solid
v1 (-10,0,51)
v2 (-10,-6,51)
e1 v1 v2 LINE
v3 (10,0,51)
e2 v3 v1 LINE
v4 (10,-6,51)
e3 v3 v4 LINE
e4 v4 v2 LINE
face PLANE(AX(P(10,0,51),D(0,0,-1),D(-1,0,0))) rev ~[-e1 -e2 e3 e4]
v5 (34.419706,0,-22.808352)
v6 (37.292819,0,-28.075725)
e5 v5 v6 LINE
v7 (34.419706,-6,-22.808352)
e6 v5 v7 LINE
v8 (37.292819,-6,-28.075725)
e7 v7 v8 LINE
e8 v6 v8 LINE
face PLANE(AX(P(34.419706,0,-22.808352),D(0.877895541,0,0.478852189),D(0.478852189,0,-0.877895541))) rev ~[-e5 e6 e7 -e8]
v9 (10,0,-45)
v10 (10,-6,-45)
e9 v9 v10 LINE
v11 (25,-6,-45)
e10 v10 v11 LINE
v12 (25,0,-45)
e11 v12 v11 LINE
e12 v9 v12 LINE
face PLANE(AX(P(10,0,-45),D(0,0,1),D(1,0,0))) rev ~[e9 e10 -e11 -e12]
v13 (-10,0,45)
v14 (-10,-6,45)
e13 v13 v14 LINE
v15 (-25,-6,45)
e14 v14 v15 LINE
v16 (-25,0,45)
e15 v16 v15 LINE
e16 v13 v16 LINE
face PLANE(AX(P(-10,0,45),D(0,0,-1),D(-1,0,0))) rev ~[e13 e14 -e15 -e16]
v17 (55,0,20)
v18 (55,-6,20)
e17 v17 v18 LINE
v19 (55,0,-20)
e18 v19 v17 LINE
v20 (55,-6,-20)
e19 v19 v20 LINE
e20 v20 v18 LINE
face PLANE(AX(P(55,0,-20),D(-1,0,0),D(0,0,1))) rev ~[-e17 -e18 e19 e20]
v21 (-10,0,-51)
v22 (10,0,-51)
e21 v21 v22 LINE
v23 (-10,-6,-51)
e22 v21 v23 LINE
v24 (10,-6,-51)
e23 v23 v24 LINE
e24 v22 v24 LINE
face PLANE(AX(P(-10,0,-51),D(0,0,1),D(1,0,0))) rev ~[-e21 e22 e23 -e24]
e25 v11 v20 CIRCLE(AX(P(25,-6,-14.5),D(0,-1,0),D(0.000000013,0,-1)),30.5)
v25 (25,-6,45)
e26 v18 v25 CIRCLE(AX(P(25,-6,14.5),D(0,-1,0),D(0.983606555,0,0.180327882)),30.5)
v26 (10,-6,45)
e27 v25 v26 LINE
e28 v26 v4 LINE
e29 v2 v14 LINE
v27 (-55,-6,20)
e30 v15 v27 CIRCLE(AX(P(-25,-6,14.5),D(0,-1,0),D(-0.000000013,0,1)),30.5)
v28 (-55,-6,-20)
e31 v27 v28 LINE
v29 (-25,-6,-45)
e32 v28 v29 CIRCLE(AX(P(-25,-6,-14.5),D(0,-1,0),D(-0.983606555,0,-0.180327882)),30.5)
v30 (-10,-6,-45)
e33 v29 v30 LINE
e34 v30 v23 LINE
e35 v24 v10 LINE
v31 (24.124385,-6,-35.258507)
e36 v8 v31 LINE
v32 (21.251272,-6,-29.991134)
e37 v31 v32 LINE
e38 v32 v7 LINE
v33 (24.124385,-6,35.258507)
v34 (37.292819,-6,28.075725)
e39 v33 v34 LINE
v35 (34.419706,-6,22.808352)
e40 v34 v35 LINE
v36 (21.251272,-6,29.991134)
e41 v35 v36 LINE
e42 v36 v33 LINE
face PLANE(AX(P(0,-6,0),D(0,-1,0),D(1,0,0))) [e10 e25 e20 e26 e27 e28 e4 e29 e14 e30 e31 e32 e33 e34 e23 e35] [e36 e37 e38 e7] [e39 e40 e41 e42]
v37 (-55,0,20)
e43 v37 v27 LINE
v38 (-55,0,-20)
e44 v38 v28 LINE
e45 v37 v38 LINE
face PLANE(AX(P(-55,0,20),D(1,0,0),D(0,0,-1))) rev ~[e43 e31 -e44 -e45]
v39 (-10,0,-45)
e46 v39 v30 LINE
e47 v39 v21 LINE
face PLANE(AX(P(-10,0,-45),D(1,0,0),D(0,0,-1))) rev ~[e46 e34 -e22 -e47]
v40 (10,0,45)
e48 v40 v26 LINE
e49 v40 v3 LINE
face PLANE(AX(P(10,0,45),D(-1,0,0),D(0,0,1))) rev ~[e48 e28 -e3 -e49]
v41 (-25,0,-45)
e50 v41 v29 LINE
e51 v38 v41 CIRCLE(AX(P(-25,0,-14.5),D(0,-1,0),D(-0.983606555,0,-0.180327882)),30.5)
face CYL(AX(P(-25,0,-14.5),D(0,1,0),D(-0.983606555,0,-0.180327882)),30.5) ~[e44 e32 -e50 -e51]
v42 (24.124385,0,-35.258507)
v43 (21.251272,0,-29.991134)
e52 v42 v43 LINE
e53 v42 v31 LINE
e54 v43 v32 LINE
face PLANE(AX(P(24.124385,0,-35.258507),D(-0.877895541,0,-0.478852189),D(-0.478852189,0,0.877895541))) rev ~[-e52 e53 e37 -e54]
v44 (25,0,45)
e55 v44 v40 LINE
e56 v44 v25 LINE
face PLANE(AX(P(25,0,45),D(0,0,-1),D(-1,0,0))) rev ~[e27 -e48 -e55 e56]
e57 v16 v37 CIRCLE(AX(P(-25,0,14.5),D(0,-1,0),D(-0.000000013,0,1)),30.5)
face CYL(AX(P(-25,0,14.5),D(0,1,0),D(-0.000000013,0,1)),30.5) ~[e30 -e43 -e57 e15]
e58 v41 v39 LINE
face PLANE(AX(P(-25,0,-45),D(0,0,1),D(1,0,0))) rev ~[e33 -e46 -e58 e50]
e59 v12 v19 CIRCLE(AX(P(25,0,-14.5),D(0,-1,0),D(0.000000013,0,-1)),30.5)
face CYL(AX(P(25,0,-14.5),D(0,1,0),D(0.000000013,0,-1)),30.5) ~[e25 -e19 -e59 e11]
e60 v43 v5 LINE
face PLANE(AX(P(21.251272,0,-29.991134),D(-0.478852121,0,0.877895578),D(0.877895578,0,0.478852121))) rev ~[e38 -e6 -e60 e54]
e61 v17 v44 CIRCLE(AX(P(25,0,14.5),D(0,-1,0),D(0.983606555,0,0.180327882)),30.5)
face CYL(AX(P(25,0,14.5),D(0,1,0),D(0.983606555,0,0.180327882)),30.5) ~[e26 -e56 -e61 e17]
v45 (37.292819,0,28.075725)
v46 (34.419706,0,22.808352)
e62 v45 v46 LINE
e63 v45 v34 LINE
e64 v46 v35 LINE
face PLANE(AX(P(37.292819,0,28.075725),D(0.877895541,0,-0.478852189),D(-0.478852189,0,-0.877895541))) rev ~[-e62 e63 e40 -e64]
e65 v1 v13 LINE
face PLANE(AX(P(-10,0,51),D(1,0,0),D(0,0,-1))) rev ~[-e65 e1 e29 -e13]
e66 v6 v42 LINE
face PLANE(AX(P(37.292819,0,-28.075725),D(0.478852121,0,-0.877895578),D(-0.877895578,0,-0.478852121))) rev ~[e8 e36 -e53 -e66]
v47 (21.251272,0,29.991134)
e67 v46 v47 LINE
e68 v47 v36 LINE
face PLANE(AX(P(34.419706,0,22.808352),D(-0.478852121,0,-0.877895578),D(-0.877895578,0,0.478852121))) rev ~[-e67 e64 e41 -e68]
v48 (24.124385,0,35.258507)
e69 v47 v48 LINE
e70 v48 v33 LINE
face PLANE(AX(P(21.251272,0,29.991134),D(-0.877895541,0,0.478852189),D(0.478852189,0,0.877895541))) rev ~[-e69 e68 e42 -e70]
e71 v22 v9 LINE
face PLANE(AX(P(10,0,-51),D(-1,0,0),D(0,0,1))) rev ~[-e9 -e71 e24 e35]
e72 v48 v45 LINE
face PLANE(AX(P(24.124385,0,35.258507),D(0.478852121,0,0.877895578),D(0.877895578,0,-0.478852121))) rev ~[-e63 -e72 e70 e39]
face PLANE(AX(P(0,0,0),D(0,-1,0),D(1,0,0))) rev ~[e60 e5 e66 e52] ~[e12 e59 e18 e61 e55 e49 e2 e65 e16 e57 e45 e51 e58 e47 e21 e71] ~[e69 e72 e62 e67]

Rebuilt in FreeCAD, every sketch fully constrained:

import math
import FreeCAD as App
import Part
import Sketcher
from FreeCAD import Vector
Q = App.Units.Quantity

doc = App.newDocument("Part")
body = doc.addObject("PartDesign::Body", "Body")

sketch1 = body.newObject("Sketcher::SketchObject", "Sketch")
sketch1.AttachmentSupport = (doc.getObject("XZ_Plane"), [""])
sketch1.MapMode = "FlatFace"
sketch1.addGeometry(Part.LineSegment(Vector(-10, -51, 0), Vector(10, -51, 0)), False)
sketch1.addGeometry(Part.LineSegment(Vector(10, -51, 0), Vector(10, -45, 0)), False)
sketch1.addGeometry(Part.LineSegment(Vector(10, -45, 0), Vector(25, -45, 0)), False)
sketch1.addGeometry(Part.ArcOfCircle(Part.Circle(Vector(25, -14.5, 0), Vector(0, 0, 1), 30.5), math.radians(-89.999999), math.radians(-10.388859)), False)
sketch1.addGeometry(Part.LineSegment(Vector(55, -20, 0), Vector(55, 20, 0)), False)
sketch1.addGeometry(Part.ArcOfCircle(Part.Circle(Vector(25, 14.5, 0), Vector(0, 0, 1), 30.5), math.radians(10.388859), math.radians(89.999999)), False)
sketch1.addGeometry(Part.LineSegment(Vector(25, 45, 0), Vector(10, 45, 0)), False)
sketch1.addGeometry(Part.LineSegment(Vector(10, 45, 0), Vector(10, 51, 0)), False)
sketch1.addGeometry(Part.LineSegment(Vector(10, 51, 0), Vector(-10, 51, 0)), False)
sketch1.addGeometry(Part.LineSegment(Vector(-10, 51, 0), Vector(-10, 45, 0)), False)
sketch1.addGeometry(Part.LineSegment(Vector(-10, 45, 0), Vector(-25, 45, 0)), False)
sketch1.addGeometry(Part.ArcOfCircle(Part.Circle(Vector(-25, 14.5, 0), Vector(0, 0, 1), 30.5), math.radians(90.000001), math.radians(169.611141)), False)
sketch1.addGeometry(Part.LineSegment(Vector(-55, 20, 0), Vector(-55, -20, 0)), False)
sketch1.addGeometry(Part.ArcOfCircle(Part.Circle(Vector(-25, -14.5, 0), Vector(0, 0, 1), 30.5), math.radians(-169.611141), math.radians(-90.000001)), False)
sketch1.addGeometry(Part.LineSegment(Vector(-25, -45, 0), Vector(-10, -45, 0)), False)
sketch1.addGeometry(Part.LineSegment(Vector(-10, -45, 0), Vector(-10, -51, 0)), False)
sketch1.addGeometry(Part.LineSegment(Vector(37.292819, -28.075725, 0), Vector(24.124385, -35.258507, 0)), False)
sketch1.addGeometry(Part.LineSegment(Vector(24.124385, -35.258507, 0), Vector(21.251272, -29.991134, 0)), False)
sketch1.addGeometry(Part.LineSegment(Vector(21.251272, -29.991134, 0), Vector(34.419706, -22.808352, 0)), False)
sketch1.addGeometry(Part.LineSegment(Vector(34.419706, -22.808352, 0), Vector(37.292819, -28.075725, 0)), False)
sketch1.addGeometry(Part.LineSegment(Vector(37.292819, 28.075725, 0), Vector(34.419706, 22.808352, 0)), False)
sketch1.addGeometry(Part.LineSegment(Vector(34.419706, 22.808352, 0), Vector(21.251272, 29.991134, 0)), False)
sketch1.addGeometry(Part.LineSegment(Vector(21.251272, 29.991134, 0), Vector(24.124385, 35.258507, 0)), False)
sketch1.addGeometry(Part.LineSegment(Vector(24.124385, 35.258507, 0), Vector(37.292819, 28.075725, 0)), False)
sketch1.addConstraint(Sketcher.Constraint("Coincident", 0, 2, 1, 1))
sketch1.addConstraint(Sketcher.Constraint("Coincident", 1, 2, 2, 1))
sketch1.addConstraint(Sketcher.Constraint("Tangent", 2, 2, 3, 1))
sketch1.addConstraint(Sketcher.Constraint("Coincident", 3, 2, 4, 1))
sketch1.addConstraint(Sketcher.Constraint("Coincident", 4, 2, 5, 1))
sketch1.addConstraint(Sketcher.Constraint("Tangent", 5, 2, 6, 1))
sketch1.addConstraint(Sketcher.Constraint("Coincident", 6, 2, 7, 1))
sketch1.addConstraint(Sketcher.Constraint("Coincident", 7, 2, 8, 1))
sketch1.addConstraint(Sketcher.Constraint("Coincident", 8, 2, 9, 1))
sketch1.addConstraint(Sketcher.Constraint("Coincident", 9, 2, 10, 1))
sketch1.addConstraint(Sketcher.Constraint("Tangent", 10, 2, 11, 1))
sketch1.addConstraint(Sketcher.Constraint("Coincident", 11, 2, 12, 1))
sketch1.addConstraint(Sketcher.Constraint("Coincident", 12, 2, 13, 1))
sketch1.addConstraint(Sketcher.Constraint("Tangent", 13, 2, 14, 1))
sketch1.addConstraint(Sketcher.Constraint("Coincident", 14, 2, 15, 1))
sketch1.addConstraint(Sketcher.Constraint("Coincident", 15, 2, 0, 1))
sketch1.addConstraint(Sketcher.Constraint("Coincident", 16, 2, 17, 1))
sketch1.addConstraint(Sketcher.Constraint("Coincident", 17, 2, 18, 1))
sketch1.addConstraint(Sketcher.Constraint("Coincident", 18, 2, 19, 1))
sketch1.addConstraint(Sketcher.Constraint("Coincident", 19, 2, 16, 1))
sketch1.addConstraint(Sketcher.Constraint("Coincident", 20, 2, 21, 1))
sketch1.addConstraint(Sketcher.Constraint("Coincident", 21, 2, 22, 1))
sketch1.addConstraint(Sketcher.Constraint("Coincident", 22, 2, 23, 1))
sketch1.addConstraint(Sketcher.Constraint("Coincident", 23, 2, 20, 1))
sketch1.addConstraint(Sketcher.Constraint("Horizontal", 0))
sketch1.addConstraint(Sketcher.Constraint("Vertical", 1))
sketch1.addConstraint(Sketcher.Constraint("Horizontal", 2))
sketch1.addConstraint(Sketcher.Constraint("Vertical", 4))
sketch1.addConstraint(Sketcher.Constraint("Horizontal", 6))
sketch1.addConstraint(Sketcher.Constraint("Vertical", 7))
sketch1.addConstraint(Sketcher.Constraint("Horizontal", 8))
sketch1.addConstraint(Sketcher.Constraint("Vertical", 9))
sketch1.addConstraint(Sketcher.Constraint("Horizontal", 10))
sketch1.addConstraint(Sketcher.Constraint("Vertical", 12))
sketch1.addConstraint(Sketcher.Constraint("Horizontal", 14))
sketch1.addConstraint(Sketcher.Constraint("Vertical", 15))
sketch1.addConstraint(Sketcher.Constraint("Equal", 3, 5))
sketch1.addConstraint(Sketcher.Constraint("Equal", 5, 11))
sketch1.addConstraint(Sketcher.Constraint("Equal", 11, 13))
sketch1.addConstraint(Sketcher.Constraint("Symmetric", 3, 3, 11, 3, -1, 1))
sketch1.addConstraint(Sketcher.Constraint("Symmetric", 5, 3, 13, 3, -1, 1))
sketch1.addConstraint(Sketcher.Constraint("Symmetric", 0, 2, 8, 2, -1, 1))
sketch1.addConstraint(Sketcher.Constraint("Symmetric", 5, 3, 11, 3, -2))
sketch1.addConstraint(Sketcher.Constraint("Symmetric", 18, 2, 20, 2, -1))
sketch1.addConstraint(Sketcher.Constraint("Symmetric", 17, 2, 21, 2, -1))
sketch1.addConstraint(Sketcher.Constraint("Symmetric", 16, 2, 22, 2, -1))
sketch1.addConstraint(Sketcher.Constraint("Symmetric", 19, 2, 23, 2, -1))
sketch1.addConstraint(Sketcher.Constraint("Perpendicular", 16, 17))
sketch1.addConstraint(Sketcher.Constraint("Perpendicular", 17, 18))
sketch1.addConstraint(Sketcher.Constraint("Perpendicular", 18, 19))
sketch1.addConstraint(Sketcher.Constraint("Horizontal", 4, 2, 11, 2))
sketch1.addConstraint(Sketcher.Constraint("Vertical", 1, 2, 6, 2))
sketch1.addConstraint(Sketcher.Constraint("Vertical", 9, 2, 14, 2))
sketch1.addConstraint(Sketcher.Constraint("Radius", 3, Q("30.5 mm")))
sketch1.addConstraint(Sketcher.Constraint("DistanceX", 0, 1, 0, 2, Q("20 mm")))
sketch1.addConstraint(Sketcher.Constraint("DistanceX", 2, 1, 2, 2, Q("15 mm")))
sketch1.addConstraint(Sketcher.Constraint("DistanceY", 1, 1, 1, 2, Q("6 mm")))
sketch1.addConstraint(Sketcher.Constraint("DistanceY", 4, 1, 4, 2, Q("40 mm")))
sketch1.addConstraint(Sketcher.Constraint("Distance", 16, Q("15 mm")))
sketch1.addConstraint(Sketcher.Constraint("Distance", 17, Q("6 mm")))
sketch1.addConstraint(Sketcher.Constraint("DistanceY", 0, 2, -1, 1, Q("51 mm")))
sketch1.addConstraint(Sketcher.Constraint("DistanceX", -1, 1, 17, 2, Q("21.251272 mm")))
sketch1.addConstraint(Sketcher.Constraint("DistanceY", 18, 2, -1, 1, Q("22.808352 mm")))
sketch1.addConstraint(Sketcher.Constraint("DistanceX", -1, 1, 19, 2, Q("37.292819 mm")))
pad1 = body.newObject("PartDesign::Pad", "Pad")
pad1.Profile = sketch1
pad1.Length = 6

doc.recompute()
